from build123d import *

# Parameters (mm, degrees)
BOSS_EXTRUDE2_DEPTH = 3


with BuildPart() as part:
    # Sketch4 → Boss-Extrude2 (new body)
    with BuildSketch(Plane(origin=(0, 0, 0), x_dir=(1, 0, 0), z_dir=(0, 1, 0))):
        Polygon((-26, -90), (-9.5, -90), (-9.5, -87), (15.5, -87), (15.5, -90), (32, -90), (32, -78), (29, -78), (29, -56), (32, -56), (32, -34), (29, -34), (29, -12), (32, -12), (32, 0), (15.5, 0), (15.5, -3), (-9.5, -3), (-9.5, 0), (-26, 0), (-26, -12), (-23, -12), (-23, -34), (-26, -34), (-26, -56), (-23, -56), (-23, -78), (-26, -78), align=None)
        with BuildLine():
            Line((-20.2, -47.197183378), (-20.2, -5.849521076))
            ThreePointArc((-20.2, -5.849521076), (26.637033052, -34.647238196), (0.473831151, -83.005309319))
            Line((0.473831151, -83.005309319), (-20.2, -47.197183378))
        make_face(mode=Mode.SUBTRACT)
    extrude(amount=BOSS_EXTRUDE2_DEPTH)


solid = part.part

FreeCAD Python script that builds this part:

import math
import FreeCAD as App
import Part
import Sketcher
Q = App.Units.Quantity


def add_polygon(sketch, points):
    """Adds a closed chain of lines whose ends are joined by coincident constraints."""
    first, n = sketch.GeometryCount, len(points)
    for a, b in zip(points, points[1:] + points[:1]):
        sketch.addGeometry(Part.LineSegment(App.Vector(*a, 0), App.Vector(*b, 0)), False)
    for i in range(n):
        sketch.addConstraint(Sketcher.Constraint("Coincident", first + i, 2, first + (i + 1) % n, 1))

doc = App.newDocument("Part")
body = doc.addObject("PartDesign::Body", "Body")

# Sketch on XZ plane
sketch1 = doc.addObject("Sketcher::SketchObject", "Sketch")
body.addObject(sketch1)
sketch1.AttachmentSupport = (doc.XZ_Plane, [""])
sketch1.MapMode = "FlatFace"
add_polygon(sketch1, [(-26, 90), (-9.5, 90), (-9.5, 87), (15.5, 87), (15.5, 90), (32, 90), (32, 78), (29, 78), (29, 56), (32, 56), (32, 34), (29, 34), (29, 12), (32, 12), (32, 0), (15.5, 0), (15.5, 3), (-9.5, 3), (-9.5, 0), (-26, 0), (-26, 12), (-23, 12), (-23, 34), (-26, 34), (-26, 56), (-23, 56), (-23, 78), (-26, 78)])  # lines 0-27
sketch1.addGeometry(Part.LineSegment(App.Vector(0.473831, 83.005309, 0), App.Vector(-20.2, 47.197183, 0)), False)  # 28
sketch1.addGeometry(Part.LineSegment(App.Vector(-20.2, 47.197183, 0), App.Vector(-20.2, 5.849521, 0)), False)  # 29
sketch1.addGeometry(Part.ArcOfCircle(Part.Circle(App.Vector(-12, 45, 0), App.Vector(0, 0, 1), 40), math.radians(-101.829499), math.radians(71.829499)), False)  # 30
sketch1.addConstraint(Sketcher.Constraint("Coincident", 28, 2, 29, 1))
sketch1.addConstraint(Sketcher.Constraint("Coincident", 29, 2, 30, 1))
sketch1.addConstraint(Sketcher.Constraint("Coincident", 30, 2, 28, 1))
sketch1.addConstraint(Sketcher.Constraint("Horizontal", 0))
sketch1.addConstraint(Sketcher.Constraint("Vertical", 1))
sketch1.addConstraint(Sketcher.Constraint("Horizontal", 2))
sketch1.addConstraint(Sketcher.Constraint("Vertical", 3))
sketch1.addConstraint(Sketcher.Constraint("Horizontal", 4))
sketch1.addConstraint(Sketcher.Constraint("Vertical", 5))
sketch1.addConstraint(Sketcher.Constraint("Horizontal", 6))
sketch1.addConstraint(Sketcher.Constraint("Vertical", 7))
sketch1.addConstraint(Sketcher.Constraint("Horizontal", 8))
sketch1.addConstraint(Sketcher.Constraint("Vertical", 9))
sketch1.addConstraint(Sketcher.Constraint("Horizontal", 10))
sketch1.addConstraint(Sketcher.Constraint("Vertical", 11))
sketch1.addConstraint(Sketcher.Constraint("Horizontal", 12))
sketch1.addConstraint(Sketcher.Constraint("Vertical", 13))
sketch1.addConstraint(Sketcher.Constraint("Horizontal", 14))
sketch1.addConstraint(Sketcher.Constraint("Vertical", 15))
sketch1.addConstraint(Sketcher.Constraint("Horizontal", 16))
sketch1.addConstraint(Sketcher.Constraint("Vertical", 17))
sketch1.addConstraint(Sketcher.Constraint("Horizontal", 18))
sketch1.addConstraint(Sketcher.Constraint("Vertical", 19))
sketch1.addConstraint(Sketcher.Constraint("Horizontal", 20))
sketch1.addConstraint(Sketcher.Constraint("Vertical", 21))
sketch1.addConstraint(Sketcher.Constraint("Horizontal", 22))
sketch1.addConstraint(Sketcher.Constraint("Vertical", 23))
sketch1.addConstraint(Sketcher.Constraint("Horizontal", 24))
sketch1.addConstraint(Sketcher.Constraint("Vertical", 25))
sketch1.addConstraint(Sketcher.Constraint("Horizontal", 26))
sketch1.addConstraint(Sketcher.Constraint("Vertical", 27))
sketch1.addConstraint(Sketcher.Constraint("Vertical", 29))
sketch1.addConstraint(Sketcher.Constraint("PointOnObject", 13, 2, -1))
sketch1.addConstraint(Sketcher.Constraint("PointOnObject", 17, 2, -1))
sketch1.addConstraint(Sketcher.Constraint("Horizontal", 0, 2, 3, 2))
sketch1.addConstraint(Sketcher.Constraint("Horizontal", 12, 2, 19, 2))
sketch1.addConstraint(Sketcher.Constraint("Horizontal", 10, 2, 21, 2))
sketch1.addConstraint(Sketcher.Constraint("Horizontal", 8, 2, 23, 2))
sketch1.addConstraint(Sketcher.Constraint("Horizontal", 6, 2, 25, 2))
sketch1.addConstraint(Sketcher.Constraint("Vertical", 5, 2, 8, 2))
sketch1.addConstraint(Sketcher.Constraint("Vertical", 7, 2, 10, 2))
sketch1.addConstraint(Sketcher.Constraint("Vertical", 9, 2, 12, 2))
sketch1.addConstraint(Sketcher.Constraint("Vertical", 3, 2, 14, 2))
sketch1.addConstraint(Sketcher.Constraint("Vertical", 1, 2, 16, 2))
sketch1.addConstraint(Sketcher.Constraint("Vertical", 19, 2, 22, 2))
sketch1.addConstraint(Sketcher.Constraint("Vertical", 21, 2, 24, 2))
sketch1.addConstraint(Sketcher.Constraint("Vertical", 23, 2, 26, 2))
sketch1.addConstraint(Sketcher.Constraint("Equal", 0, 4))
sketch1.addConstraint(Sketcher.Constraint("Equal", 12, 20))
sketch1.addConstraint(Sketcher.Constraint("Equal", 26, 1))
sketch1.addConstraint(Sketcher.Constraint("Equal", 7, 9))
sketch1.addConstraint(Sketcher.Constraint("Equal", 9, 11))
sketch1.addConstraint(Sketcher.Constraint("Equal", 5, 13))
sketch1.addConstraint(Sketcher.Constraint("Equal", 3, 15))
sketch1.addConstraint(Sketcher.Constraint("Radius", 30, 40.0))
sketch1.addConstraint(Sketcher.Constraint("DistanceX", 2, 1, 2, 2, 25.0))
sketch1.addConstraint(Sketcher.Constraint("DistanceX", 6, 2, 6, 1, 3.0))
sketch1.addConstraint(Sketcher.Constraint("DistanceY", 5, 2, 5, 1, 12.0))
sketch1.addConstraint(Sketcher.Constraint("DistanceY", 7, 2, 7, 1, 22.0))
sketch1.addConstraint(Sketcher.Constraint("Angle", 28, Q("-120 deg")))
sketch1.addConstraint(Sketcher.Constraint("DistanceX", 0, 1, 0, 2, 16.5))
sketch1.addConstraint(Sketcher.Constraint("DistanceX", 30, 3, -1, 1, 12.0))
sketch1.addConstraint(Sketcher.Constraint("DistanceY", -1, 1, 30, 3, 45.0))
sketch1.addConstraint(Sketcher.Constraint("DistanceX", -1, 1, 4, 2, 32.0))
sketch1.addConstraint(Sketcher.Constraint("DistanceX", 28, 2, -1, 1, 20.2))
sketch1.addConstraint(Sketcher.Constraint("DistanceY", 29, 2, 29, 1, 41.347662))
pad1 = doc.addObject("PartDesign::Pad", "Pad")
body.addObject(pad1)
pad1.Profile = sketch1
pad1.Length = 3
pad1.Reversed = True

doc.recompute()
